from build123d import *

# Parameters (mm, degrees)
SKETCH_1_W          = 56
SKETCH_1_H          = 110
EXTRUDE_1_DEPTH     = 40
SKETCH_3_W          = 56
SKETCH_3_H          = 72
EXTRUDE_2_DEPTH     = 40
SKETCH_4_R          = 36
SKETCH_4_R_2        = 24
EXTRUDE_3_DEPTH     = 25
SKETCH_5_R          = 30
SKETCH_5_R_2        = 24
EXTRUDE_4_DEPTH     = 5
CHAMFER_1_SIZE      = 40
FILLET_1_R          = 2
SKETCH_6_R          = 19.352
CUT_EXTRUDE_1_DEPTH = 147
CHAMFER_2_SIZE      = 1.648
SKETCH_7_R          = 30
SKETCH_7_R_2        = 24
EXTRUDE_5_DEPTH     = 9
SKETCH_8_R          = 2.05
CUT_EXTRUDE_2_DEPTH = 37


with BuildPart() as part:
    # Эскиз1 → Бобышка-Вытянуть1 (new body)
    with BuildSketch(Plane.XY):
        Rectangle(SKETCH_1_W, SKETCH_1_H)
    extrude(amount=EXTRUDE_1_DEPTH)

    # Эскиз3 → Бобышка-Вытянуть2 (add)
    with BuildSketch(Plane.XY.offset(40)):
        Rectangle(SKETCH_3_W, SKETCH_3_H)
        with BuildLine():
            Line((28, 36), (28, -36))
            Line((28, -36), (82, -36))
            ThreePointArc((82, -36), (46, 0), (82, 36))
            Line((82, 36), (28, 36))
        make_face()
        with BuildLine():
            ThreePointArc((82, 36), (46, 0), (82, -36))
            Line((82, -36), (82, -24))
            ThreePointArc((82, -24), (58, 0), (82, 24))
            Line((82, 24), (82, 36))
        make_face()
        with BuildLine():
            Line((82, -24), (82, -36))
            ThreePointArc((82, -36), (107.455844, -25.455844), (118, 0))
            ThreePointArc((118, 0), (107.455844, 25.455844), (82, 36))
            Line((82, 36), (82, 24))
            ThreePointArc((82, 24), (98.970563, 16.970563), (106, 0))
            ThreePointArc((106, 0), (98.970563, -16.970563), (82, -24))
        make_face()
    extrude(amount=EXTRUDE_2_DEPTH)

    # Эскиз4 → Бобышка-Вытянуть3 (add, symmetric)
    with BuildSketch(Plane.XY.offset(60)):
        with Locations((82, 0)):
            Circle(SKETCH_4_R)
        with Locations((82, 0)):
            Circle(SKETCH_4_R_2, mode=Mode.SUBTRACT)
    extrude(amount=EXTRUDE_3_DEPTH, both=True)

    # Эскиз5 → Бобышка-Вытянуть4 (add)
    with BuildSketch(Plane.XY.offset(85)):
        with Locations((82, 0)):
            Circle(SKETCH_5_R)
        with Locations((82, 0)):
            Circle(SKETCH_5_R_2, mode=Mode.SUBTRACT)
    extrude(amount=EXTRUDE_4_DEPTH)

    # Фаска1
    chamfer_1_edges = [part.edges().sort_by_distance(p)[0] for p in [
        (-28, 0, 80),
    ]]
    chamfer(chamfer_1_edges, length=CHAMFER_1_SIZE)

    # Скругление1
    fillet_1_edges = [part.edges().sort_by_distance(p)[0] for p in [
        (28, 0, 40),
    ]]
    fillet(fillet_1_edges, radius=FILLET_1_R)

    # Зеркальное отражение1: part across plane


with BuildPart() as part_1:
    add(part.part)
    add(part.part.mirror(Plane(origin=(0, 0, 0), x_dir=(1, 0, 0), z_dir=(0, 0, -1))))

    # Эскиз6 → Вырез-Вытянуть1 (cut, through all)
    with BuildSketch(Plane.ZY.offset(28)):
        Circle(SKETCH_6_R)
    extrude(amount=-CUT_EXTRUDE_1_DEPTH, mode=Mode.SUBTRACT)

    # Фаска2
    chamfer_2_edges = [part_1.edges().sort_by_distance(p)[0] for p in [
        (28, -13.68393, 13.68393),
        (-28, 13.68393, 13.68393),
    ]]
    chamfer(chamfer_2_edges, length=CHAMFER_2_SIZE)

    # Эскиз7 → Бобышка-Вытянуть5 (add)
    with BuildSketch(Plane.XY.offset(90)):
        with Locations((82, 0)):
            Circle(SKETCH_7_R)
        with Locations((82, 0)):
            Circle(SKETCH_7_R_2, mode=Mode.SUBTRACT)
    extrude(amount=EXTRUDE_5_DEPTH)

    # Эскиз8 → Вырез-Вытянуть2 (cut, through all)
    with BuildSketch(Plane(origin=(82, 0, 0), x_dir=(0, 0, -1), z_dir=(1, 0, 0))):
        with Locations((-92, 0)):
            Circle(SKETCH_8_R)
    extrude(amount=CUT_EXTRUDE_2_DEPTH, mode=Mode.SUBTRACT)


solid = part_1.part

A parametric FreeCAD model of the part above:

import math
import FreeCAD as App
import Part
import Sketcher
Q = App.Units.Quantity


def edges_at(feature, points):
    """Names of the edges that pass closest to the given points."""
    edges = feature.Shape.Edges
    near = lambda p: min(range(len(edges)), key=lambda i: edges[i].distToShape(Part.Vertex(*p))[0])
    return sorted({f"Edge{near(p) + 1}" for p in points})

doc = App.newDocument("Part")
params = doc.addObject("Spreadsheet::Sheet", "Params")
for row, (alias, value) in enumerate([
    ("sketch1_width", "56 mm"),
    ("sketch1_height", "110 mm"),
    ("pad1_length", "40 mm"),
    ("sketch2_radius", "36 mm"),
    ("sketch2_radius2", "24 mm"),
    ("sketch2_width", "110 mm"),
    ("pad2_length", "40 mm"),
    ("sketch3_diameter", "72 mm"),
    ("sketch3_diameter2", "48 mm"),
    ("pad3_length", "50 mm"),
    ("sketch4_diameter", "60 mm"),
    ("sketch4_diameter2", "48 mm"),
    ("pad4_length", "5 mm"),
    ("chamfer_size", "40 mm"),
    ("fillet_radius", "2 mm"),
    ("chamfer2_size", "1.648 mm"),
    ("sketch6_diameter", "60 mm"),
    ("sketch6_diameter2", "48 mm"),
    ("pad5_length", "9 mm"),
    ("sketch7_diameter", "4.1 mm"),
], start=1):
    params.set(f"A{row}", alias)
    params.set(f"B{row}", "=" + value)
    params.setAlias(f"B{row}", alias)

body = doc.addObject("PartDesign::Body", "Body")

sketch1 = doc.addObject("Sketcher::SketchObject", "Sketch")
body.addObject(sketch1)
sketch1.AttachmentSupport = (doc.XY_Plane, [""])
sketch1.MapMode = "FlatFace"
sketch1.addGeometry([
    Part.LineSegment(App.Vector(-28, 55, 0), App.Vector(-28, -55, 0)),
    Part.LineSegment(App.Vector(-28, -55, 0), App.Vector(28, -55, 0)),
    Part.LineSegment(App.Vector(28, -55, 0), App.Vector(28, 55, 0)),
    Part.LineSegment(App.Vector(28, 55, 0), App.Vector(-28, 55, 0)),
], False)
sketch1.addConstraint([
    Sketcher.Constraint("Coincident", 0, 2, 1, 1),
    Sketcher.Constraint("Coincident", 1, 2, 2, 1),
    Sketcher.Constraint("Coincident", 2, 2, 3, 1),
    Sketcher.Constraint("Coincident", 3, 2, 0, 1),
    Sketcher.Constraint("Vertical", 0),
    Sketcher.Constraint("Horizontal", 1),
    Sketcher.Constraint("Vertical", 2),
    Sketcher.Constraint("Horizontal", 3),
    Sketcher.Constraint("Symmetric", 0, 2, 2, 2, -1, 1),
    Sketcher.Constraint("DistanceX", 1, 1, 1, 2, Q("56 mm")),
    Sketcher.Constraint("DistanceY", 0, 2, 0, 1, Q("110 mm")),
])
sketch1.setExpression("Constraints[9]", "Params.sketch1_width")
sketch1.setExpression("Constraints[10]", "Params.sketch1_height")
pad1 = doc.addObject("PartDesign::Pad", "Pad")
body.addObject(pad1)
pad1.Profile = sketch1
pad1.setExpression("Length", "Params.pad1_length")

sketch2 = doc.addObject("Sketcher::SketchObject", "Sketch001")
body.addObject(sketch2)
sketch2.AttachmentSupport = (doc.XY_Plane, [""])
sketch2.MapMode = "FlatFace"
sketch2.AttachmentOffset = App.Placement(App.Vector(0, 0, 40), App.Rotation())
sketch2.addGeometry([
    Part.LineSegment(App.Vector(-28, 36, 0), App.Vector(-28, -36, 0)),
    Part.LineSegment(App.Vector(-28, -36, 0), App.Vector(82, -36, 0)),
    Part.ArcOfCircle(Part.Circle(App.Vector(82, 0, 0), App.Vector(0, 0, 1), 36), math.radians(-90), math.radians(0)),
    Part.ArcOfCircle(Part.Circle(App.Vector(82, 0, 0), App.Vector(0, 0, 1), 36), math.radians(0), math.radians(90)),
    Part.LineSegment(App.Vector(82, 36, 0), App.Vector(-28, 36, 0)),
    Part.ArcOfCircle(Part.Circle(App.Vector(82, 0, 0), App.Vector(0, 0, 1), 24), math.radians(90), math.radians(270)),
    Part.ArcOfCircle(Part.Circle(App.Vector(82, 0, 0), App.Vector(0, 0, 1), 24), math.radians(0), math.radians(90)),
    Part.ArcOfCircle(Part.Circle(App.Vector(82, 0, 0), App.Vector(0, 0, 1), 24), math.radians(-90), math.radians(0)),
], False)
sketch2.addConstraint([
    Sketcher.Constraint("Coincident", 0, 2, 1, 1),
    Sketcher.Constraint("Tangent", 1, 2, 2, 1),
    Sketcher.Constraint("Tangent", 2, 2, 3, 1),
    Sketcher.Constraint("Tangent", 3, 2, 4, 1),
    Sketcher.Constraint("Coincident", 4, 2, 0, 1),
    Sketcher.Constraint("Tangent", 5, 1, 6, 2),
    Sketcher.Constraint("Tangent", 6, 1, 7, 2),
    Sketcher.Constraint("Tangent", 7, 1, 5, 2),
    Sketcher.Constraint("Vertical", 0),
    Sketcher.Constraint("Horizontal", 1),
    Sketcher.Constraint("Horizontal", 4),
    Sketcher.Constraint("Coincident", 5, 3, 2, 3),
    Sketcher.Constraint("Equal", 2, 3),
    Sketcher.Constraint("Symmetric", 5, 1, 7, 1, -1),
    Sketcher.Constraint("PointOnObject", 2, 2, -1),
    Sketcher.Constraint("PointOnObject", 6, 1, -1),
    Sketcher.Constraint("Vertical", 3, 2, 5, 1),
    Sketcher.Constraint("Radius", 2, Q("36 mm")),
    Sketcher.Constraint("Radius", 5, Q("24 mm")),
    Sketcher.Constraint("DistanceX", 1, 1, 1, 2, Q("110 mm")),
    Sketcher.Constraint("DistanceX", -1, 1, 2, 3, Q("82 mm")),
])
sketch2.setExpression("Constraints[17]", "Params.sketch2_radius")
sketch2.setExpression("Constraints[18]", "Params.sketch2_radius2")
sketch2.setExpression("Constraints[19]", "Params.sketch2_width")
pad2 = doc.addObject("PartDesign::Pad", "Pad001")
body.addObject(pad2)
pad2.Profile = sketch2
pad2.setExpression("Length", "Params.pad2_length")

sketch3 = doc.addObject("Sketcher::SketchObject", "Sketch002")
body.addObject(sketch3)
sketch3.AttachmentSupport = (doc.XY_Plane, [""])
sketch3.MapMode = "FlatFace"
sketch3.AttachmentOffset = App.Placement(App.Vector(0, 0, 60), App.Rotation())
sketch3.addGeometry([
    Part.Circle(App.Vector(82, 0, 0), App.Vector(0, 0, 1), 36),
    Part.Circle(App.Vector(82, 0, 0), App.Vector(0, 0, 1), 24),
], False)
sketch3.addConstraint([
    Sketcher.Constraint("Coincident", 1, 3, 0, 3),
    Sketcher.Constraint("PointOnObject", 0, 3, -1),
    Sketcher.Constraint("Diameter", 0, Q("72 mm")),
    Sketcher.Constraint("Diameter", 1, Q("48 mm")),
    Sketcher.Constraint("DistanceX", -1, 1, 0, 3, Q("82 mm")),
])
sketch3.setExpression("Constraints[2]", "Params.sketch3_diameter")
sketch3.setExpression("Constraints[3]", "Params.sketch3_diameter2")
pad3 = doc.addObject("PartDesign::Pad", "Pad002")
body.addObject(pad3)
pad3.Profile = sketch3
pad3.setExpression("Length", "Params.pad3_length")
pad3.Midplane = True

sketch4 = doc.addObject("Sketcher::SketchObject", "Sketch003")
body.addObject(sketch4)
sketch4.AttachmentSupport = (doc.XY_Plane, [""])
sketch4.MapMode = "FlatFace"
sketch4.AttachmentOffset = App.Placement(App.Vector(0, 0, 85), App.Rotation())
sketch4.addGeometry([
    Part.Circle(App.Vector(82, 0, 0), App.Vector(0, 0, 1), 30),
    Part.Circle(App.Vector(82, 0, 0), App.Vector(0, 0, 1), 24),
], False)
sketch4.addConstraint([
    Sketcher.Constraint("Coincident", 1, 3, 0, 3),
    Sketcher.Constraint("PointOnObject", 0, 3, -1),
    Sketcher.Constraint("Diameter", 0, Q("60 mm")),
    Sketcher.Constraint("Diameter", 1, Q("48 mm")),
    Sketcher.Constraint("DistanceX", -1, 1, 0, 3, Q("82 mm")),
])
sketch4.setExpression("Constraints[2]", "Params.sketch4_diameter")
sketch4.setExpression("Constraints[3]", "Params.sketch4_diameter2")
pad4 = doc.addObject("PartDesign::Pad", "Pad003")
body.addObject(pad4)
pad4.Profile = sketch4
pad4.setExpression("Length", "Params.pad4_length")
doc.recompute()

chamfer = doc.addObject("PartDesign::Chamfer", "Chamfer")
body.addObject(chamfer)
chamfer.Base = (pad4, edges_at(pad4, [(-28, 0, 80)]))
chamfer.setExpression("Size", "Params.chamfer_size")
doc.recompute()

fillet = doc.addObject("PartDesign::Fillet", "Fillet")
body.addObject(fillet)
fillet.Base = (chamfer, edges_at(chamfer, [(28, 0, 40)]))
fillet.setExpression("Radius", "Params.fillet_radius")
body2 = doc.addObject("PartDesign::Body", "Body001")
doc.recompute()

body2.BaseFeature = body
doc.recompute()

mirroring = doc.addObject("Part::Mirroring", "Mirroring")
mirroring.Source = body
mirroring.Base = App.Vector(0, 0, 0)
mirroring.Normal = App.Vector(0, 0, -1)
body3 = doc.addObject("PartDesign::Body", "Body002")
body3.BaseFeature = mirroring
boolean = doc.addObject("PartDesign::Boolean", "Boolean")
body2.addObject(boolean)
boolean.Type = "Fuse"
boolean.addObjects([body3])
doc.recompute()

sketch5 = doc.addObject("Sketcher::SketchObject", "Sketch004")
body2.addObject(sketch5)
sketch5.AttachmentSupport = (doc.getObject("YZ_Plane001"), [""])
sketch5.MapMode = "FlatFace"
sketch5.AttachmentOffset = App.Placement(App.Vector(0, 0, -28), App.Rotation())
sketch5.addGeometry(Part.Circle(App.Vector(0, 0, 0), App.Vector(0, 0, 1), 19), False)
sketch5.addConstraint([
    Sketcher.Constraint("Coincident", 0, 3, -1, 1),
    Sketcher.Constraint("Diameter", 0, Q("38.704 mm")),
])
pocket1 = doc.addObject("PartDesign::Pocket", "Pocket")
body2.addObject(pocket1)
pocket1.Profile = sketch5
pocket1.Type = "ThroughAll"
pocket1.Reversed = True
doc.recompute()

chamfer2 = doc.addObject("PartDesign::Chamfer", "Chamfer001")
body2.addObject(chamfer2)
chamfer2.Base = (pocket1, edges_at(pocket1, [(28, 0, -19.352), (-28, 0, -19.352)]))
chamfer2.setExpression("Size", "Params.chamfer2_size")

sketch6 = doc.addObject("Sketcher::SketchObject", "Sketch005")
body2.addObject(sketch6)
sketch6.AttachmentSupport = (doc.getObject("XY_Plane001"), [""])
sketch6.MapMode = "FlatFace"
sketch6.AttachmentOffset = App.Placement(App.Vector(0, 0, 90), App.Rotation())
sketch6.addGeometry([
    Part.Circle(App.Vector(82, 0, 0), App.Vector(0, 0, 1), 30),
    Part.Circle(App.Vector(82, 0, 0), App.Vector(0, 0, 1), 24),
], False)
sketch6.addConstraint([
    Sketcher.Constraint("Coincident", 1, 3, 0, 3),
    Sketcher.Constraint("PointOnObject", 0, 3, -1),
    Sketcher.Constraint("Diameter", 0, Q("60 mm")),
    Sketcher.Constraint("Diameter", 1, Q("48 mm")),
    Sketcher.Constraint("DistanceX", -1, 1, 0, 3, Q("82 mm")),
])
sketch6.setExpression("Constraints[2]", "Params.sketch6_diameter")
sketch6.setExpression("Constraints[3]", "Params.sketch6_diameter2")
pad5 = doc.addObject("PartDesign::Pad", "Pad004")
body2.addObject(pad5)
pad5.Profile = sketch6
pad5.setExpression("Length", "Params.pad5_length")

sketch7 = doc.addObject("Sketcher::SketchObject", "Sketch006")
body2.addObject(sketch7)
sketch7.AttachmentSupport = (doc.getObject("YZ_Plane001"), [""])
sketch7.MapMode = "FlatFace"
sketch7.AttachmentOffset = App.Placement(App.Vector(0, 0, 82), App.Rotation())
sketch7.addGeometry(Part.Circle(App.Vector(0, 92, 0), App.Vector(0, 0, 1), 2), False)
sketch7.addConstraint([
    Sketcher.Constraint("PointOnObject", 0, 3, -2),
    Sketcher.Constraint("Diameter", 0, Q("4.1 mm")),
    Sketcher.Constraint("DistanceY", -1, 1, 0, 3, Q("92 mm")),
])
sketch7.setExpression("Constraints[1]", "Params.sketch7_diameter")
pocket2 = doc.addObject("PartDesign::Pocket", "Pocket001")
body2.addObject(pocket2)
pocket2.Profile = sketch7
pocket2.Type = "ThroughAll"
pocket2.Reversed = True
mirroring.Visibility = False

doc.recompute()
